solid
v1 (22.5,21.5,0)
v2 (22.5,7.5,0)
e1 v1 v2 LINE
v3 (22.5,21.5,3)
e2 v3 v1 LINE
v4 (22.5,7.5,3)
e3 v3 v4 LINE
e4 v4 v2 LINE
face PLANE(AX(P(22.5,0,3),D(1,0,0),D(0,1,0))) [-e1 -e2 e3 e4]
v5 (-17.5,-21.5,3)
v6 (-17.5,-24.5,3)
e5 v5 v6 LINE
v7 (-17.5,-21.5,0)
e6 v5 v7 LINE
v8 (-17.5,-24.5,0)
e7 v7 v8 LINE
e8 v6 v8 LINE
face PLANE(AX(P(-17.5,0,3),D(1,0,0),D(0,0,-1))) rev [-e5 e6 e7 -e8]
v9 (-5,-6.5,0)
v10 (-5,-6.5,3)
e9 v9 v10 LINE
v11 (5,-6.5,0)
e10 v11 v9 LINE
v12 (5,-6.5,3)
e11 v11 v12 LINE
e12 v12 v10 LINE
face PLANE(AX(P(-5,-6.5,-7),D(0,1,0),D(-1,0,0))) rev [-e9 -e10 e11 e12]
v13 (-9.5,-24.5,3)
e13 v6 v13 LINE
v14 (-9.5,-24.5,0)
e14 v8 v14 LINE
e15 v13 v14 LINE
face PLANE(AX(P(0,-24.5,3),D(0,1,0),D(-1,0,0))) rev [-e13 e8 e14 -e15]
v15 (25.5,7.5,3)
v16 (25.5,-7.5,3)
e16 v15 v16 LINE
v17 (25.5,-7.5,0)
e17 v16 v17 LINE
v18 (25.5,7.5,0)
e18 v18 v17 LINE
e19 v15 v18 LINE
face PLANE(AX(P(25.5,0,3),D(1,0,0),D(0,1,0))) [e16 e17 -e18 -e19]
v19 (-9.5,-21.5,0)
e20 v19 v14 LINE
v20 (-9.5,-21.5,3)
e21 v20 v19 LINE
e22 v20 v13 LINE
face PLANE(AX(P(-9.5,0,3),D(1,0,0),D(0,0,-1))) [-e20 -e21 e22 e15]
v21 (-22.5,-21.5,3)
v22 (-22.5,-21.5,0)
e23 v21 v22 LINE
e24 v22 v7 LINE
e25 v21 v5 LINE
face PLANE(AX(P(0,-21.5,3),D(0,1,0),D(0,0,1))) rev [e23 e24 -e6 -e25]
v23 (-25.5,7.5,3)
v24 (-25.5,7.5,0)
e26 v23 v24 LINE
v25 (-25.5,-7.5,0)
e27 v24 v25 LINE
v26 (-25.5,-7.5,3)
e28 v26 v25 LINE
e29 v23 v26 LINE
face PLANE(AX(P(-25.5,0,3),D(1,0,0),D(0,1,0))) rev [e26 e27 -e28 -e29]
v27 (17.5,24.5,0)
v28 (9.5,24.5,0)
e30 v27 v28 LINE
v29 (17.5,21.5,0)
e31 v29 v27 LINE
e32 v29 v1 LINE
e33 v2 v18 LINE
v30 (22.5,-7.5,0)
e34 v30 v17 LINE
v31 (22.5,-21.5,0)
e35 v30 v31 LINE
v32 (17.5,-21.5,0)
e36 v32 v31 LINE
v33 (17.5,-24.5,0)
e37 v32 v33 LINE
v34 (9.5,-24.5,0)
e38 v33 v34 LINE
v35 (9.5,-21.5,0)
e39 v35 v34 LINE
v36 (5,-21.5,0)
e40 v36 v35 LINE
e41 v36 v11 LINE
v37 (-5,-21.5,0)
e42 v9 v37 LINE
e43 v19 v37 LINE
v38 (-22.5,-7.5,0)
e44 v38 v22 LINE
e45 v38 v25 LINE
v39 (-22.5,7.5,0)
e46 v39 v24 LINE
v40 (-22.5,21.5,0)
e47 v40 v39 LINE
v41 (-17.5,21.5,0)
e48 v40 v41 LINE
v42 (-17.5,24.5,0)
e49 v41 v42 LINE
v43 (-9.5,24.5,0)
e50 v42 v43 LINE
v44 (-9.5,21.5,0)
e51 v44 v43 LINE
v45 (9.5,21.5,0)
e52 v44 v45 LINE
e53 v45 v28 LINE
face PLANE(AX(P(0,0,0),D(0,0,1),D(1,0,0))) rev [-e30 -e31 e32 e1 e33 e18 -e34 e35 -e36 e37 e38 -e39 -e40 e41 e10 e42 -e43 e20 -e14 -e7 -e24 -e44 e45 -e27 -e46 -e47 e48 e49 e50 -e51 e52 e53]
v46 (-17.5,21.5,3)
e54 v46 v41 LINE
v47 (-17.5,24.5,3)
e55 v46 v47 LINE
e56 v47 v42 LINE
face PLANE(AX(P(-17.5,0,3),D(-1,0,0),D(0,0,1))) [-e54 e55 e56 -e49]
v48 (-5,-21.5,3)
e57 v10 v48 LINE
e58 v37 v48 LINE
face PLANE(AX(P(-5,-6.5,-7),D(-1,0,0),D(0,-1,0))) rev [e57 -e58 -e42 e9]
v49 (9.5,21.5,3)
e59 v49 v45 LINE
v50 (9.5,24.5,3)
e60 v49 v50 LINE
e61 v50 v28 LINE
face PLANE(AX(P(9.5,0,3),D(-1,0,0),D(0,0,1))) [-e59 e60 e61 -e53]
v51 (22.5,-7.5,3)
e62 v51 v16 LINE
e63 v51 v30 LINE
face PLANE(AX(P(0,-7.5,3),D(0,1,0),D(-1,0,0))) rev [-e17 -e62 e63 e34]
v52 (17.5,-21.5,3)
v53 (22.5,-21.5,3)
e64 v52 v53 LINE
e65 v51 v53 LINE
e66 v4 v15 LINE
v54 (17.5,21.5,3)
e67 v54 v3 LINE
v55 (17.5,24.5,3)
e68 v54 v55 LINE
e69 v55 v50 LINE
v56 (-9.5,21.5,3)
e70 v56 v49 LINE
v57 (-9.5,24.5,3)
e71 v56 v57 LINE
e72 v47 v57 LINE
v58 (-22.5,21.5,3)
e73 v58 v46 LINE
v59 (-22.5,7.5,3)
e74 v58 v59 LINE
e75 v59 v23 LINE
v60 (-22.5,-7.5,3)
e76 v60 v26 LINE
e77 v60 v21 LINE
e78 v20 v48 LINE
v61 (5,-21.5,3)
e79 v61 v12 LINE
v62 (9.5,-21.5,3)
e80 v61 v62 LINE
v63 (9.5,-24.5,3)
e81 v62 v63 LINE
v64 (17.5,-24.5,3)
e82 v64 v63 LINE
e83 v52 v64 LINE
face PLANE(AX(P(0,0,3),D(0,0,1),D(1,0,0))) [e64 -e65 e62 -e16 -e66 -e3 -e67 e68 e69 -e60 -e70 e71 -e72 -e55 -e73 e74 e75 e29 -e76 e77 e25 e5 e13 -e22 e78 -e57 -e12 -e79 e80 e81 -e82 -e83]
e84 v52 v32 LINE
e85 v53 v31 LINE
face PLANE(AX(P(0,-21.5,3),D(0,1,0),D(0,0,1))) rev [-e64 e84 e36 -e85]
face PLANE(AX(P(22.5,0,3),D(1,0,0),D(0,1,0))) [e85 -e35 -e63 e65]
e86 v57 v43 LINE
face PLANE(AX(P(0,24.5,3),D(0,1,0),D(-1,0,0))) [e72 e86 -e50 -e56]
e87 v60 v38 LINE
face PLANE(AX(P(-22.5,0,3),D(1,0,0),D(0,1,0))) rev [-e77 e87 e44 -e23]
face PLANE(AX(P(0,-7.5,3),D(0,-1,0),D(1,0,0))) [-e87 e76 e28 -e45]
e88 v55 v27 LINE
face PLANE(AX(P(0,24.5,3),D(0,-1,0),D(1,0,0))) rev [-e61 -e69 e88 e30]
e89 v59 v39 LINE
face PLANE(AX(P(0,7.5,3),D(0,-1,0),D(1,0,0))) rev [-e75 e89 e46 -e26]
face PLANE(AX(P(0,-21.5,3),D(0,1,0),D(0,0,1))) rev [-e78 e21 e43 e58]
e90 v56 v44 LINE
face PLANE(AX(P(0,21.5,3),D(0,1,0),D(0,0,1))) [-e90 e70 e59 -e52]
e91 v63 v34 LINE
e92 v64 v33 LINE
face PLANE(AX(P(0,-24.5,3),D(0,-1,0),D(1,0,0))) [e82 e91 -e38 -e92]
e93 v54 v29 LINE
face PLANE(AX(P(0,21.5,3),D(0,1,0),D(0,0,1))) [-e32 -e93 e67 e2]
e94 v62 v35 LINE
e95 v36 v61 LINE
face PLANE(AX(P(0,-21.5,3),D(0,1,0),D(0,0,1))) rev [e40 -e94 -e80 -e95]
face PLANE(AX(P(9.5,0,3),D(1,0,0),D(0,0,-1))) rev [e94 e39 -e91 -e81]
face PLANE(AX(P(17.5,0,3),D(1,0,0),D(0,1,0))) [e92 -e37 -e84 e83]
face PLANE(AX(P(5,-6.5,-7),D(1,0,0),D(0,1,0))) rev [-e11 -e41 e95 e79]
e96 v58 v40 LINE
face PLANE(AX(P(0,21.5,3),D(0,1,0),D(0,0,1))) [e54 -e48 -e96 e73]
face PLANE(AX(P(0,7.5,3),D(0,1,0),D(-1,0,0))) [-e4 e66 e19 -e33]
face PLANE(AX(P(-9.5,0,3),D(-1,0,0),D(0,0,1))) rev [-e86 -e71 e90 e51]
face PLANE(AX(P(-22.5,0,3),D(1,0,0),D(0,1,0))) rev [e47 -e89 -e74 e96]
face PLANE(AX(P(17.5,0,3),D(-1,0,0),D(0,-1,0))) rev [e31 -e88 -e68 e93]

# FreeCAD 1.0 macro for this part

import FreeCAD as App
import Part
import Sketcher
from FreeCAD import Vector
Q = App.Units.Quantity

doc = App.newDocument("Part")
body = doc.addObject("PartDesign::Body", "Body")

sketch1 = body.newObject("Sketcher::SketchObject", "Sketch")
sketch1.AttachmentSupport = (doc.getObject("XY_Plane"), [""])
sketch1.MapMode = "FlatFace"
sketch1.addGeometry([
    Part.LineSegment(Vector(-22.5, -7.5, 0), Vector(-22.5, -21.5, 0)),
    Part.LineSegment(Vector(-22.5, -21.5, 0), Vector(-17.5, -21.5, 0)),
    Part.LineSegment(Vector(-17.5, -21.5, 0), Vector(-17.5, -24.5, 0)),
    Part.LineSegment(Vector(-17.5, -24.5, 0), Vector(-9.5, -24.5, 0)),
    Part.LineSegment(Vector(-9.5, -24.5, 0), Vector(-9.5, -21.5, 0)),
    Part.LineSegment(Vector(-9.5, -21.5, 0), Vector(9.5, -21.5, 0)),
    Part.LineSegment(Vector(9.5, -21.5, 0), Vector(9.5, -24.5, 0)),
    Part.LineSegment(Vector(9.5, -24.5, 0), Vector(17.5, -24.5, 0)),
    Part.LineSegment(Vector(17.5, -24.5, 0), Vector(17.5, -21.5, 0)),
    Part.LineSegment(Vector(17.5, -21.5, 0), Vector(22.5, -21.5, 0)),
    Part.LineSegment(Vector(22.5, -21.5, 0), Vector(22.5, -7.5, 0)),
    Part.LineSegment(Vector(22.5, -7.5, 0), Vector(25.5, -7.5, 0)),
    Part.LineSegment(Vector(25.5, -7.5, 0), Vector(25.5, 7.5, 0)),
    Part.LineSegment(Vector(25.5, 7.5, 0), Vector(22.5, 7.5, 0)),
    Part.LineSegment(Vector(22.5, 7.5, 0), Vector(22.5, 21.5, 0)),
    Part.LineSegment(Vector(22.5, 21.5, 0), Vector(17.5, 21.5, 0)),
    Part.LineSegment(Vector(17.5, 21.5, 0), Vector(17.5, 24.5, 0)),
    Part.LineSegment(Vector(17.5, 24.5, 0), Vector(9.5, 24.5, 0)),
    Part.LineSegment(Vector(9.5, 24.5, 0), Vector(9.5, 21.5, 0)),
    Part.LineSegment(Vector(9.5, 21.5, 0), Vector(-9.5, 21.5, 0)),
    Part.LineSegment(Vector(-9.5, 21.5, 0), Vector(-9.5, 24.5, 0)),
    Part.LineSegment(Vector(-9.5, 24.5, 0), Vector(-17.5, 24.5, 0)),
    Part.LineSegment(Vector(-17.5, 24.5, 0), Vector(-17.5, 21.5, 0)),
    Part.LineSegment(Vector(-17.5, 21.5, 0), Vector(-22.5, 21.5, 0)),
    Part.LineSegment(Vector(-22.5, 21.5, 0), Vector(-22.5, 7.5, 0)),
    Part.LineSegment(Vector(-22.5, 7.5, 0), Vector(-25.5, 7.5, 0)),
    Part.LineSegment(Vector(-25.5, 7.5, 0), Vector(-25.5, -7.5, 0)),
    Part.LineSegment(Vector(-25.5, -7.5, 0), Vector(-22.5, -7.5, 0)),
], False)
sketch1.addConstraint([
    Sketcher.Constraint("Coincident", 0, 2, 1, 1),
    Sketcher.Constraint("Coincident", 1, 2, 2, 1),
    Sketcher.Constraint("Coincident", 2, 2, 3, 1),
    Sketcher.Constraint("Coincident", 3, 2, 4, 1),
    Sketcher.Constraint("Coincident", 4, 2, 5, 1),
    Sketcher.Constraint("Coincident", 5, 2, 6, 1),
    Sketcher.Constraint("Coincident", 6, 2, 7, 1),
    Sketcher.Constraint("Coincident", 7, 2, 8, 1),
    Sketcher.Constraint("Coincident", 8, 2, 9, 1),
    Sketcher.Constraint("Coincident", 9, 2, 10, 1),
    Sketcher.Constraint("Coincident", 10, 2, 11, 1),
    Sketcher.Constraint("Coincident", 11, 2, 12, 1),
    Sketcher.Constraint("Coincident", 12, 2, 13, 1),
    Sketcher.Constraint("Coincident", 13, 2, 14, 1),
    Sketcher.Constraint("Coincident", 14, 2, 15, 1),
    Sketcher.Constraint("Coincident", 15, 2, 16, 1),
    Sketcher.Constraint("Coincident", 16, 2, 17, 1),
    Sketcher.Constraint("Coincident", 17, 2, 18, 1),
    Sketcher.Constraint("Coincident", 18, 2, 19, 1),
    Sketcher.Constraint("Coincident", 19, 2, 20, 1),
    Sketcher.Constraint("Coincident", 20, 2, 21, 1),
    Sketcher.Constraint("Coincident", 21, 2, 22, 1),
    Sketcher.Constraint("Coincident", 22, 2, 23, 1),
    Sketcher.Constraint("Coincident", 23, 2, 24, 1),
    Sketcher.Constraint("Coincident", 24, 2, 25, 1),
    Sketcher.Constraint("Coincident", 25, 2, 26, 1),
    Sketcher.Constraint("Coincident", 26, 2, 27, 1),
    Sketcher.Constraint("Coincident", 27, 2, 0, 1),
    Sketcher.Constraint("Vertical", 0),
    Sketcher.Constraint("Horizontal", 1),
    Sketcher.Constraint("Vertical", 2),
    Sketcher.Constraint("Horizontal", 3),
    Sketcher.Constraint("Vertical", 4),
    Sketcher.Constraint("Horizontal", 5),
    Sketcher.Constraint("Vertical", 6),
    Sketcher.Constraint("Horizontal", 7),
    Sketcher.Constraint("Vertical", 8),
    Sketcher.Constraint("Horizontal", 9),
    Sketcher.Constraint("Vertical", 10),
    Sketcher.Constraint("Horizontal", 11),
    Sketcher.Constraint("Vertical", 12),
    Sketcher.Constraint("Horizontal", 13),
    Sketcher.Constraint("Vertical", 14),
    Sketcher.Constraint("Horizontal", 15),
    Sketcher.Constraint("Vertical", 16),
    Sketcher.Constraint("Horizontal", 17),
    Sketcher.Constraint("Vertical", 18),
    Sketcher.Constraint("Horizontal", 19),
    Sketcher.Constraint("Vertical", 20),
    Sketcher.Constraint("Horizontal", 21),
    Sketcher.Constraint("Vertical", 22),
    Sketcher.Constraint("Horizontal", 23),
    Sketcher.Constraint("Vertical", 24),
    Sketcher.Constraint("Horizontal", 25),
    Sketcher.Constraint("Vertical", 26),
    Sketcher.Constraint("Horizontal", 27),
    Sketcher.Constraint("Symmetric", 0, 2, 14, 2, -1, 1),
    Sketcher.Constraint("Symmetric", 2, 2, 16, 2, -1, 1),
    Sketcher.Constraint("Symmetric", 4, 2, 18, 2, -1, 1),
    Sketcher.Constraint("Symmetric", 6, 2, 20, 2, -1, 1),
    Sketcher.Constraint("Symmetric", 8, 2, 22, 2, -1, 1),
    Sketcher.Constraint("Symmetric", 10, 2, 24, 2, -1, 1),
    Sketcher.Constraint("Symmetric", 12, 2, 26, 2, -1, 1),
    Sketcher.Constraint("Symmetric", 3, 2, 6, 2, -2),
    Sketcher.Constraint("Symmetric", 1, 2, 8, 2, -2),
    Sketcher.Constraint("Symmetric", 13, 2, 24, 2, -2),
    Sketcher.Constraint("Horizontal", 1, 2, 4, 2),
    Sketcher.Constraint("Equal", 27, 2),
    Sketcher.Constraint("DistanceX", 1, 1, 1, 2, Q("5 mm")),
    Sketcher.Constraint("DistanceX", 3, 1, 3, 2, Q("8 mm")),
    Sketcher.Constraint("DistanceX", 5, 1, 5, 2, Q("19 mm")),
    Sketcher.Constraint("DistanceX", 11, 1, 11, 2, Q("3 mm")),
    Sketcher.Constraint("DistanceY", 0, 2, 0, 1, Q("14 mm")),
    Sketcher.Constraint("DistanceY", 12, 1, 12, 2, Q("15 mm")),
])
pad1 = body.newObject("PartDesign::Pad", "Pad")
pad1.Profile = sketch1
pad1.Length = 3

sketch2 = body.newObject("Sketcher::SketchObject", "Sketch001")
sketch2.AttachmentSupport = (doc.getObject("XY_Plane"), [""])
sketch2.MapMode = "FlatFace"
sketch2.AttachmentOffset = App.Placement(Vector(0, 0, 3), App.Rotation())
sketch2.addGeometry([
    Part.LineSegment(Vector(-5, -6, 0), Vector(-5, -22, 0)),
    Part.LineSegment(Vector(-5, -22, 0), Vector(5, -22, 0)),
    Part.LineSegment(Vector(5, -22, 0), Vector(5, -6, 0)),
    Part.LineSegment(Vector(5, -6, 0), Vector(-5, -6, 0)),
], False)
sketch2.addConstraint([
    Sketcher.Constraint("Coincident", 0, 2, 1, 1),
    Sketcher.Constraint("Coincident", 1, 2, 2, 1),
    Sketcher.Constraint("Coincident", 2, 2, 3, 1),
    Sketcher.Constraint("Coincident", 3, 2, 0, 1),
    Sketcher.Constraint("Vertical", 0),
    Sketcher.Constraint("Horizontal", 1),
    Sketcher.Constraint("Vertical", 2),
    Sketcher.Constraint("Horizontal", 3),
    Sketcher.Constraint("DistanceX", 1, 1, 1, 2, Q("10 mm")),
    Sketcher.Constraint("DistanceY", 0, 2, 0, 1, Q("15 mm")),
    Sketcher.Constraint("DistanceX", 0, 2, -1, 1, Q("5 mm")),
    Sketcher.Constraint("DistanceY", 0, 2, -1, 1, Q("21.5 mm")),
])
pocket1 = body.newObject("PartDesign::Pocket", "Pocket")
pocket1.Profile = sketch2
pocket1.Length = 10

doc.recompute()
